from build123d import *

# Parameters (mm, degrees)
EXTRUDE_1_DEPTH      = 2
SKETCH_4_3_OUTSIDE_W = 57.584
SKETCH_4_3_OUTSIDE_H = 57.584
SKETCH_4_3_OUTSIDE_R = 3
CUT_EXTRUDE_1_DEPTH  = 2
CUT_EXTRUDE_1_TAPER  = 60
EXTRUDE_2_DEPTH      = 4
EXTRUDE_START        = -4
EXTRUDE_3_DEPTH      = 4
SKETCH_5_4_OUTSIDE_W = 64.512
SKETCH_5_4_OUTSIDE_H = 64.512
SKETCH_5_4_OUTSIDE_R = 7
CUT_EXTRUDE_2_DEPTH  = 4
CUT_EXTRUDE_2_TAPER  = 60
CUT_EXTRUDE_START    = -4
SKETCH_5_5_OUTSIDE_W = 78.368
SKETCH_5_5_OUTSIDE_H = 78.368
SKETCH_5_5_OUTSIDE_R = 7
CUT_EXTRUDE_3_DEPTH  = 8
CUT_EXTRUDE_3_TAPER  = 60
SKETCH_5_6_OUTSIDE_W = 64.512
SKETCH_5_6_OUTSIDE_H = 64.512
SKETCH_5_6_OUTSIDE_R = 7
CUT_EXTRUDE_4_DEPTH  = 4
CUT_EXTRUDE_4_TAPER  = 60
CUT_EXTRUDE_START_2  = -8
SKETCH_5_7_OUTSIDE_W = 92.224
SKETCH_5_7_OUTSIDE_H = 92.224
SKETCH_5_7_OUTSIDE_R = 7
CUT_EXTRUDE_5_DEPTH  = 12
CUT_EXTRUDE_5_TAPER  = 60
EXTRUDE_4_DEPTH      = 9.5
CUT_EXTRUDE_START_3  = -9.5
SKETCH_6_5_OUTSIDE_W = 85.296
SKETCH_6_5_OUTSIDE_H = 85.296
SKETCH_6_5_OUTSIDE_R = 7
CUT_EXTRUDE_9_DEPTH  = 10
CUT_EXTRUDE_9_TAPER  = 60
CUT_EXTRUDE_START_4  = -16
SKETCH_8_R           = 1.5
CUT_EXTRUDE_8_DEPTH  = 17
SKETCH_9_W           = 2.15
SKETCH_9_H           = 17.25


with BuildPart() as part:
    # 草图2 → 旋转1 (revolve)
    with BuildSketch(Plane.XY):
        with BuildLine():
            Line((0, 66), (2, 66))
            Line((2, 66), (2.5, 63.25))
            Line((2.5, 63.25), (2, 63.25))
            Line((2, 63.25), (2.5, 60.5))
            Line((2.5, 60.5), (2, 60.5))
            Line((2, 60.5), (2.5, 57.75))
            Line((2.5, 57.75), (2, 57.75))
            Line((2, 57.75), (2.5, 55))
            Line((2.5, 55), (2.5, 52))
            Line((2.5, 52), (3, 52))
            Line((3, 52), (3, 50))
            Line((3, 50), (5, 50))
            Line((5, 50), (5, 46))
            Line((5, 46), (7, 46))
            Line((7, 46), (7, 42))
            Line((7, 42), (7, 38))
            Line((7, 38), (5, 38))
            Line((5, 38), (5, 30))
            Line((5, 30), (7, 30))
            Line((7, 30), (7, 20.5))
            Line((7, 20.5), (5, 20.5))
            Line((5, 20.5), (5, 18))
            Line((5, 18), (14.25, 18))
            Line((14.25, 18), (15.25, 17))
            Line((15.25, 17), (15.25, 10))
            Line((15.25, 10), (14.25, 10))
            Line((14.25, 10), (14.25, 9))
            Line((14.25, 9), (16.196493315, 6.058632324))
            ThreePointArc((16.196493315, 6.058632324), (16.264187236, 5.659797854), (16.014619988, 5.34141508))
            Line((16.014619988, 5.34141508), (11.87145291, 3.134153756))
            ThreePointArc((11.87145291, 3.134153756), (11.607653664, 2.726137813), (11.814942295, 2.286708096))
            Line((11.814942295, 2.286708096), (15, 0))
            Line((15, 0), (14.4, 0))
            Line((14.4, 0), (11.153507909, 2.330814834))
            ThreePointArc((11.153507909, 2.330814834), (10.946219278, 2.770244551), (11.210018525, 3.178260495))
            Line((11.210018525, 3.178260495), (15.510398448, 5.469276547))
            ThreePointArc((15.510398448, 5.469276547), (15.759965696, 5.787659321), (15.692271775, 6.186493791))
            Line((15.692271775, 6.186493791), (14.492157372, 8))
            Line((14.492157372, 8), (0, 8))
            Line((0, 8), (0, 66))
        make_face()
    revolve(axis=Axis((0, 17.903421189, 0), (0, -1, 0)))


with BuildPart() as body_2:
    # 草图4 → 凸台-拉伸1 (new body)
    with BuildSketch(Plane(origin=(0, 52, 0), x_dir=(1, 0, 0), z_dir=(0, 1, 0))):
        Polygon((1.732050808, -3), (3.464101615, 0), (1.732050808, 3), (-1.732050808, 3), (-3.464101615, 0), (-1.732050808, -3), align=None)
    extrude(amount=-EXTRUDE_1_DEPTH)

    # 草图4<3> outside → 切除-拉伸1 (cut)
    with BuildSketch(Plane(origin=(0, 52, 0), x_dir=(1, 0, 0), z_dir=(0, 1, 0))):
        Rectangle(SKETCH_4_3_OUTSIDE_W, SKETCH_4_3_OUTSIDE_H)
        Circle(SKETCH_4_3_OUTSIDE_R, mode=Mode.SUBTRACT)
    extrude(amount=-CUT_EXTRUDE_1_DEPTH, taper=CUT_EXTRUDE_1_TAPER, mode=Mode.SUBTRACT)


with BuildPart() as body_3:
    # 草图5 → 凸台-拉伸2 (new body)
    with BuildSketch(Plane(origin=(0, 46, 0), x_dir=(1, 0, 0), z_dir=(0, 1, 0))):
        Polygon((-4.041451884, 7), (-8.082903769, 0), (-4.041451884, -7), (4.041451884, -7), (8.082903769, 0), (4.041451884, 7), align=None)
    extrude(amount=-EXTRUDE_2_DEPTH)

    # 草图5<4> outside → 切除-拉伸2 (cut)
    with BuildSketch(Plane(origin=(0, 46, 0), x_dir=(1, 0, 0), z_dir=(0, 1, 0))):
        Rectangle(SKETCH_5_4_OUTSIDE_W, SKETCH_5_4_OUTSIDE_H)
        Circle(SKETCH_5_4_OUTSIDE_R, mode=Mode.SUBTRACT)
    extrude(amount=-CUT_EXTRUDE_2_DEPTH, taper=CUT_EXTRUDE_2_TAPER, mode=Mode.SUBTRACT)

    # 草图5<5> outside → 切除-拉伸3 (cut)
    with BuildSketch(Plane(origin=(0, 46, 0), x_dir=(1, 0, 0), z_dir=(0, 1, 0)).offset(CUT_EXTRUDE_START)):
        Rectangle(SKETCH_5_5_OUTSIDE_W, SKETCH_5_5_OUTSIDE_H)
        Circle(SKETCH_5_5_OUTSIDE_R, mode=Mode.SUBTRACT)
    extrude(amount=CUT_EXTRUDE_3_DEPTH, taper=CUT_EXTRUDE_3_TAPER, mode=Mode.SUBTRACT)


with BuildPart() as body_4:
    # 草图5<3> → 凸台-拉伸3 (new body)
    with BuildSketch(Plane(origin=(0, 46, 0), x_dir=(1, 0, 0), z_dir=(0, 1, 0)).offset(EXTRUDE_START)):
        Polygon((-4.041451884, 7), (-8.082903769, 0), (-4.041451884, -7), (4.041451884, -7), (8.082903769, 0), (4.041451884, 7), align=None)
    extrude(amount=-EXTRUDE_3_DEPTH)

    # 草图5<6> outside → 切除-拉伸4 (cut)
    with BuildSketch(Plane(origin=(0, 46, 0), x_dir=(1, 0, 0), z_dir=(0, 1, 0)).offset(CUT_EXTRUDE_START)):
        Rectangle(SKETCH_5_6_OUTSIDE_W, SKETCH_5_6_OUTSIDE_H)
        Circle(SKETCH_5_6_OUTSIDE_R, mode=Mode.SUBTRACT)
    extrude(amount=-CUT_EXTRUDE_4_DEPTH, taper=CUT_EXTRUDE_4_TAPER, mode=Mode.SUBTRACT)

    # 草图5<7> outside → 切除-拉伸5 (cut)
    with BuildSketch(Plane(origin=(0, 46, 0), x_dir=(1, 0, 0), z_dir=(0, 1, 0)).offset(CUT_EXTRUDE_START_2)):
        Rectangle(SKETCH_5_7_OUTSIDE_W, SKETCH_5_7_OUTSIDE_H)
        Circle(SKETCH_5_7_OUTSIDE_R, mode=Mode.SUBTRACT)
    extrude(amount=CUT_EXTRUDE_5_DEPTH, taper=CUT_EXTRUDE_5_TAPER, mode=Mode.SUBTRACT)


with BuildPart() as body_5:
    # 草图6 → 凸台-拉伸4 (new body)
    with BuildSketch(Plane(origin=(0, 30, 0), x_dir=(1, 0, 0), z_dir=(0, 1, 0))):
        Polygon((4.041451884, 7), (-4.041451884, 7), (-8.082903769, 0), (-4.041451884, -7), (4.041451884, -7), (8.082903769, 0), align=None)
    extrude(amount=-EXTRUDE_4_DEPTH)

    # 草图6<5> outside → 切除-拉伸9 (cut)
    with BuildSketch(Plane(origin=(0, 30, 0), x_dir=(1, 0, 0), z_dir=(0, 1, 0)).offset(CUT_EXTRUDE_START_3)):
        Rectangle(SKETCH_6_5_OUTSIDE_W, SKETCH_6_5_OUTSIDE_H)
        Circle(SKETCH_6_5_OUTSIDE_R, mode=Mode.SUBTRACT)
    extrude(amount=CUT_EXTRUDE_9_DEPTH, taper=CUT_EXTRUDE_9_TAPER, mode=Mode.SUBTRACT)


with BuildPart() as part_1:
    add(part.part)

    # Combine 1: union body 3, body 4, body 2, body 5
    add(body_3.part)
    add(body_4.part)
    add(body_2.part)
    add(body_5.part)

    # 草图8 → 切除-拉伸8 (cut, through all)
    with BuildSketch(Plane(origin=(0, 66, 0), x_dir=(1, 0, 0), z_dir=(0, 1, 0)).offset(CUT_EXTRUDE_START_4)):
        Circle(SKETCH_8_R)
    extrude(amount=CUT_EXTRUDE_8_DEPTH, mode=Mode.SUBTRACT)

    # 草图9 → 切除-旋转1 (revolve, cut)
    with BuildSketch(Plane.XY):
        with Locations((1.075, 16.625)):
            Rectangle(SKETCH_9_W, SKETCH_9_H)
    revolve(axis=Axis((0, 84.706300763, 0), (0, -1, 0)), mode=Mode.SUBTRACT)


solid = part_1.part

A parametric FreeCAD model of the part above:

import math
import FreeCAD as App
import Part
import Sketcher
from FreeCAD import Vector
Q = App.Units.Quantity

doc = App.newDocument("Part")
body = doc.addObject("PartDesign::Body", "Body")

# Sketch on XY plane
sketch1 = body.newObject("Sketcher::SketchObject", "Sketch")
sketch1.AttachmentSupport = (doc.getObject("XY_Plane"), [""])
sketch1.MapMode = "FlatFace"
sketch1.addGeometry([
    Part.LineSegment(Vector(2, 66, 0), Vector(0, 66, 0)),  # 0
    Part.LineSegment(Vector(0, 66, 0), Vector(0, 8, 0)),  # 1
    Part.LineSegment(Vector(0, 8, 0), Vector(14.5, 8, 0)),  # 2
    Part.LineSegment(Vector(14.5, 8, 0), Vector(15.7, 6.2, 0)),  # 3
    Part.ArcOfCircle(Part.Circle(Vector(15.3, 5.9, 0), Vector(0, 0, 1), 0.5), math.radians(-62), math.radians(33)),  # 4
    Part.LineSegment(Vector(15.5, 5.5, 0), Vector(11.2, 3.2, 0)),  # 5
    Part.ArcOfCircle(Part.Circle(Vector(11.4, 2.7, 0), Vector(0, 0, 1), 0.5), math.radians(118), math.radians(234)),  # 6
    Part.LineSegment(Vector(11.2, 2.3, 0), Vector(14.4, 0, 0)),  # 7
    Part.LineSegment(Vector(14.4, 0, 0), Vector(15, 0, 0)),  # 8
    Part.LineSegment(Vector(15, 0, 0), Vector(11.8, 2.3, 0)),  # 9
    Part.ArcOfCircle(Part.Circle(Vector(12.1, 2.7, 0), Vector(0, 0, 1), 0.5), math.radians(118), math.radians(234)),  # 10
    Part.LineSegment(Vector(11.9, 3.1, 0), Vector(16, 5.3, 0)),  # 11
    Part.ArcOfCircle(Part.Circle(Vector(15.8, 5.8, 0), Vector(0, 0, 1), 0.5), math.radians(-62), math.radians(33)),  # 12
    Part.LineSegment(Vector(16.2, 6.1, 0), Vector(14.2, 9, 0)),  # 13
    Part.LineSegment(Vector(14.2, 9, 0), Vector(14.2, 10, 0)),  # 14
    Part.LineSegment(Vector(14.2, 10, 0), Vector(15.2, 10, 0)),  # 15
    Part.LineSegment(Vector(15.2, 10, 0), Vector(15.2, 17, 0)),  # 16
    Part.LineSegment(Vector(15.2, 17, 0), Vector(14.2, 18, 0)),  # 17
    Part.LineSegment(Vector(14.2, 18, 0), Vector(5, 18, 0)),  # 18
    Part.LineSegment(Vector(5, 18, 0), Vector(5, 20.5, 0)),  # 19
    Part.LineSegment(Vector(5, 20.5, 0), Vector(7, 20.5, 0)),  # 20
    Part.LineSegment(Vector(7, 20.5, 0), Vector(7, 30, 0)),  # 21
    Part.LineSegment(Vector(7, 30, 0), Vector(5, 30, 0)),  # 22
    Part.LineSegment(Vector(5, 30, 0), Vector(5, 38, 0)),  # 23
    Part.LineSegment(Vector(5, 38, 0), Vector(7, 38, 0)),  # 24
    Part.LineSegment(Vector(7, 38, 0), Vector(7, 46, 0)),  # 25
    Part.LineSegment(Vector(7, 46, 0), Vector(5, 46, 0)),  # 26
    Part.LineSegment(Vector(5, 46, 0), Vector(5, 50, 0)),  # 27
    Part.LineSegment(Vector(5, 50, 0), Vector(3, 50, 0)),  # 28
    Part.LineSegment(Vector(3, 50, 0), Vector(3, 52, 0)),  # 29
    Part.LineSegment(Vector(3, 52, 0), Vector(2.5, 52, 0)),  # 30
    Part.LineSegment(Vector(2.5, 52, 0), Vector(2.5, 55, 0)),  # 31
    Part.LineSegment(Vector(2.5, 55, 0), Vector(2, 57.8, 0)),  # 32
    Part.LineSegment(Vector(2, 57.8, 0), Vector(2.5, 57.8, 0)),  # 33
    Part.LineSegment(Vector(2.5, 57.8, 0), Vector(2, 60.5, 0)),  # 34
    Part.LineSegment(Vector(2, 60.5, 0), Vector(2.5, 60.5, 0)),  # 35
    Part.LineSegment(Vector(2.5, 60.5, 0), Vector(2, 63.2, 0)),  # 36
    Part.LineSegment(Vector(2, 63.2, 0), Vector(2.5, 63.2, 0)),  # 37
    Part.LineSegment(Vector(2.5, 63.2, 0), Vector(2, 66, 0)),  # 38
], False)
sketch1.addConstraint([
    Sketcher.Constraint("Coincident", 0, 2, 1, 1),
    Sketcher.Constraint("Coincident", 1, 2, 2, 1),
    Sketcher.Constraint("Coincident", 2, 2, 3, 1),
    Sketcher.Constraint("Tangent", 3, 2, 4, 2),
    Sketcher.Constraint("Tangent", 4, 1, 5, 1),
    Sketcher.Constraint("Tangent", 5, 2, 6, 1),
    Sketcher.Constraint("Tangent", 6, 2, 7, 1),
    Sketcher.Constraint("Coincident", 7, 2, 8, 1),
    Sketcher.Constraint("Coincident", 8, 2, 9, 1),
    Sketcher.Constraint("Tangent", 9, 2, 10, 2),
    Sketcher.Constraint("Tangent", 10, 1, 11, 1),
    Sketcher.Constraint("Tangent", 11, 2, 12, 1),
    Sketcher.Constraint("Tangent", 12, 2, 13, 1),
    Sketcher.Constraint("Coincident", 13, 2, 14, 1),
    Sketcher.Constraint("Coincident", 14, 2, 15, 1),
    Sketcher.Constraint("Coincident", 15, 2, 16, 1),
    Sketcher.Constraint("Coincident", 16, 2, 17, 1),
    Sketcher.Constraint("Coincident", 17, 2, 18, 1),
    Sketcher.Constraint("Coincident", 18, 2, 19, 1),
    Sketcher.Constraint("Coincident", 19, 2, 20, 1),
    Sketcher.Constraint("Coincident", 20, 2, 21, 1),
    Sketcher.Constraint("Coincident", 21, 2, 22, 1),
    Sketcher.Constraint("Coincident", 22, 2, 23, 1),
    Sketcher.Constraint("Coincident", 23, 2, 24, 1),
    Sketcher.Constraint("Coincident", 24, 2, 25, 1),
    Sketcher.Constraint("Coincident", 25, 2, 26, 1),
    Sketcher.Constraint("Coincident", 26, 2, 27, 1),
    Sketcher.Constraint("Coincident", 27, 2, 28, 1),
    Sketcher.Constraint("Coincident", 28, 2, 29, 1),
    Sketcher.Constraint("Coincident", 29, 2, 30, 1),
    Sketcher.Constraint("Coincident", 30, 2, 31, 1),
    Sketcher.Constraint("Coincident", 31, 2, 32, 1),
    Sketcher.Constraint("Coincident", 32, 2, 33, 1),
    Sketcher.Constraint("Coincident", 33, 2, 34, 1),
    Sketcher.Constraint("Coincident", 34, 2, 35, 1),
    Sketcher.Constraint("Coincident", 35, 2, 36, 1),
    Sketcher.Constraint("Coincident", 36, 2, 37, 1),
    Sketcher.Constraint("Coincident", 37, 2, 38, 1),
    Sketcher.Constraint("Coincident", 38, 2, 0, 1),
    Sketcher.Constraint("Horizontal", 0),
    Sketcher.Constraint("Vertical", 1),
    Sketcher.Constraint("Horizontal", 2),
    Sketcher.Constraint("Horizontal", 8),
    Sketcher.Constraint("Vertical", 14),
    Sketcher.Constraint("Horizontal", 15),
    Sketcher.Constraint("Vertical", 16),
    Sketcher.Constraint("Horizontal", 18),
    Sketcher.Constraint("Vertical", 19),
    Sketcher.Constraint("Horizontal", 20),
    Sketcher.Constraint("Vertical", 21),
    Sketcher.Constraint("Horizontal", 22),
    Sketcher.Constraint("Vertical", 23),
    Sketcher.Constraint("Horizontal", 24),
    Sketcher.Constraint("Vertical", 25),
    Sketcher.Constraint("Horizontal", 26),
    Sketcher.Constraint("Vertical", 27),
    Sketcher.Constraint("Horizontal", 28),
    Sketcher.Constraint("Vertical", 29),
    Sketcher.Constraint("Horizontal", 30),
    Sketcher.Constraint("Vertical", 31),
    Sketcher.Constraint("Horizontal", 33),
    Sketcher.Constraint("Horizontal", 35),
    Sketcher.Constraint("Horizontal", 37),
    Sketcher.Constraint("Equal", 4, 6),
    Sketcher.Constraint("Equal", 6, 10),
    Sketcher.Constraint("Equal", 10, 12),
    Sketcher.Constraint("PointOnObject", 0, 2, -2),
    Sketcher.Constraint("PointOnObject", 7, 2, -1),
    Sketcher.Constraint("Parallel", 7, 9),
    Sketcher.Constraint("Parallel", 5, 11),
    Sketcher.Constraint("Parallel", 3, 13),
    Sketcher.Constraint("Parallel", 32, 34),
    Sketcher.Constraint("Parallel", 34, 36),
    Sketcher.Constraint("Parallel", 36, 38),
    Sketcher.Constraint("Vertical", 14, 2, 17, 2),
    Sketcher.Constraint("Vertical", 19, 2, 22, 2),
    Sketcher.Constraint("Vertical", 21, 2, 24, 2),
    Sketcher.Constraint("Vertical", 23, 2, 26, 2),
    Sketcher.Constraint("Vertical", 31, 2, 33, 2),
    Sketcher.Constraint("Vertical", 32, 2, 34, 2),
    Sketcher.Constraint("Vertical", 33, 2, 35, 2),
    Sketcher.Constraint("Vertical", 34, 2, 36, 2),
    Sketcher.Constraint("Vertical", 35, 2, 37, 2),
    Sketcher.Constraint("Vertical", 36, 2, 38, 2),
    Sketcher.Constraint("Equal", 0, 20),
    Sketcher.Constraint("Equal", 26, 28),
    Sketcher.Constraint("Equal", 30, 33),
    Sketcher.Constraint("Equal", 15, 14),
    Sketcher.Constraint("Equal", 23, 25),
    Sketcher.Constraint("Equal", 28, 29),
    Sketcher.Constraint("Radius", 4, Q("0.5 mm")),
    Sketcher.Constraint("DistanceX", 0, 2, 0, 1, Q("2 mm")),
    Sketcher.Constraint("DistanceX", 15, 1, 15, 2, Q("1 mm")),
    Sketcher.Constraint("DistanceY", 1, 2, 1, 1, Q("58 mm")),
    Sketcher.Constraint("DistanceY", 16, 1, 16, 2, Q("7 mm")),
    Sketcher.Constraint("DistanceY", 23, 1, 23, 2, Q("8 mm")),
    Sketcher.Constraint("DistanceY", 27, 1, 27, 2, Q("4 mm")),
    Sketcher.Constraint("DistanceY", 31, 1, 31, 2, Q("3 mm")),
    Sketcher.Constraint("Angle", 17, Q("135 deg")),
    Sketcher.Constraint("DistanceX", 8, 1, 8, 2, Q("0.6 mm")),
    Sketcher.Constraint("DistanceX", 30, 2, 30, 1, Q("0.5 mm")),
    Sketcher.Constraint("DistanceY", 19, 1, 19, 2, Q("2.5 mm")),
    Sketcher.Constraint("DistanceY", 21, 1, 21, 2, Q("9.5 mm")),
    Sketcher.Constraint("DistanceY", -1, 1, 0, 2, Q("66 mm")),
    Sketcher.Constraint("DistanceX", -1, 1, 8, 2, Q("15 mm")),
    Sketcher.Constraint("DistanceY", -1, 1, 13, 2, Q("9 mm")),
    Sketcher.Constraint("DistanceX", 18, 2, 18, 1, Q("9.25 mm")),
    Sketcher.Constraint("DistanceY", -1, 1, 12, 3, Q("5.782699 mm")),
    Sketcher.Constraint("DistanceX", -1, 1, 4, 1, Q("15.510398 mm")),
    Sketcher.Constraint("DistanceY", 5, 2, 4, 3, Q("2.7323 mm")),
    Sketcher.Constraint("Distance", 5, Q("4.872579 mm")),
    Sketcher.Constraint("Distance", 7, Q("3.99655 mm")),
    Sketcher.Constraint("Distance", 9, Q("3.920922 mm")),
])
revolution = body.newObject("PartDesign::Revolution", "Revolution")
revolution.Profile = sketch1
revolution.ReferenceAxis = (sketch1, ["V_Axis"])
revolution.Angle = 360
body2 = doc.addObject("PartDesign::Body", "Body001")

# Sketch on XZ plane
sketch2 = body2.newObject("Sketcher::SketchObject", "Sketch001")
sketch2.AttachmentSupport = (doc.getObject("XZ_Plane001"), [""])
sketch2.MapMode = "FlatFace"
sketch2.AttachmentOffset = App.Placement(Vector(0, 0, -52), App.Rotation())
sketch2.addGeometry([
    Part.LineSegment(Vector(1.7, 3, 0), Vector(3.5, 0, 0)),  # 0
    Part.LineSegment(Vector(3.5, 0, 0), Vector(1.7, -3, 0)),  # 1
    Part.LineSegment(Vector(1.7, -3, 0), Vector(-1.7, -3, 0)),  # 2
    Part.LineSegment(Vector(-1.7, -3, 0), Vector(-3.5, 0, 0)),  # 3
    Part.LineSegment(Vector(-3.5, 0, 0), Vector(-1.7, 3, 0)),  # 4
    Part.LineSegment(Vector(-1.7, 3, 0), Vector(1.7, 3, 0)),  # 5
], False)
sketch2.addConstraint([
    Sketcher.Constraint("Coincident", 0, 2, 1, 1),
    Sketcher.Constraint("Coincident", 1, 2, 2, 1),
    Sketcher.Constraint("Coincident", 2, 2, 3, 1),
    Sketcher.Constraint("Coincident", 3, 2, 4, 1),
    Sketcher.Constraint("Coincident", 4, 2, 5, 1),
    Sketcher.Constraint("Coincident", 5, 2, 0, 1),
    Sketcher.Constraint("Horizontal", 2),
    Sketcher.Constraint("Horizontal", 5),
    Sketcher.Constraint("Symmetric", 0, 2, 3, 2, -1, 1),
    Sketcher.Constraint("Symmetric", 1, 2, 4, 2, -1, 1),
    Sketcher.Constraint("PointOnObject", 0, 2, -1),
    Sketcher.Constraint("Parallel", 0, 3),
    Sketcher.Constraint("Vertical", 2, 2, 4, 2),
    Sketcher.Constraint("Angle", 0, Q("-60 deg")),
    Sketcher.Constraint("DistanceY", 1, 2, -1, 1, Q("3 mm")),
    Sketcher.Constraint("DistanceX", 2, 2, 2, 1, Q("3.464102 mm")),
])
pad1 = body2.newObject("PartDesign::Pad", "Pad")
pad1.Profile = sketch2
pad1.Length = 2

# Sketch on XZ plane
sketch3 = body2.newObject("Sketcher::SketchObject", "Sketch002")
sketch3.AttachmentSupport = (doc.getObject("XZ_Plane001"), [""])
sketch3.MapMode = "FlatFace"
sketch3.AttachmentOffset = App.Placement(Vector(0, 0, -52), App.Rotation())
sketch3.addGeometry([
    Part.LineSegment(Vector(-28.8, -28.8, 0), Vector(-28.8, 28.8, 0)),  # 0
    Part.LineSegment(Vector(-28.8, 28.8, 0), Vector(28.8, 28.8, 0)),  # 1
    Part.LineSegment(Vector(28.8, 28.8, 0), Vector(28.8, -28.8, 0)),  # 2
    Part.LineSegment(Vector(28.8, -28.8, 0), Vector(-28.8, -28.8, 0)),  # 3
    Part.Circle(Vector(0, 0, 0), Vector(0, 0, 1), 3),  # 4
], False)
sketch3.addConstraint([
    Sketcher.Constraint("Coincident", 0, 2, 1, 1),
    Sketcher.Constraint("Coincident", 1, 2, 2, 1),
    Sketcher.Constraint("Coincident", 2, 2, 3, 1),
    Sketcher.Constraint("Coincident", 3, 2, 0, 1),
    Sketcher.Constraint("Vertical", 0),
    Sketcher.Constraint("Horizontal", 1),
    Sketcher.Constraint("Vertical", 2),
    Sketcher.Constraint("Horizontal", 3),
    Sketcher.Constraint("Coincident", 4, 3, -1, 1),
    Sketcher.Constraint("Symmetric", 0, 2, 2, 2, -1, 1),
    Sketcher.Constraint("Equal", 3, 0),
    Sketcher.Constraint("Diameter", 4, Q("6 mm")),
    Sketcher.Constraint("DistanceX", 1, 1, 1, 2, Q("57.584 mm")),
])
pocket1 = body2.newObject("PartDesign::Pocket", "Pocket")
pocket1.Profile = sketch3
pocket1.Length = 2
pocket1.Reversed = True
pocket1.TaperAngle = 60
body3 = doc.addObject("PartDesign::Body", "Body002")

# Sketch on XZ plane
sketch4 = body3.newObject("Sketcher::SketchObject", "Sketch003")
sketch4.AttachmentSupport = (doc.getObject("XZ_Plane002"), [""])
sketch4.MapMode = "FlatFace"
sketch4.AttachmentOffset = App.Placement(Vector(0, 0, -46), App.Rotation())
sketch4.addGeometry([
    Part.LineSegment(Vector(-4, -7, 0), Vector(-8, 0, 0)),  # 0
    Part.LineSegment(Vector(-8, 0, 0), Vector(-4, 7, 0)),  # 1
    Part.LineSegment(Vector(-4, 7, 0), Vector(4, 7, 0)),  # 2
    Part.LineSegment(Vector(4, 7, 0), Vector(8, 0, 0)),  # 3
    Part.LineSegment(Vector(8, 0, 0), Vector(4, -7, 0)),  # 4
    Part.LineSegment(Vector(4, -7, 0), Vector(-4, -7, 0)),  # 5
], False)
sketch4.addConstraint([
    Sketcher.Constraint("Coincident", 0, 2, 1, 1),
    Sketcher.Constraint("Coincident", 1, 2, 2, 1),
    Sketcher.Constraint("Coincident", 2, 2, 3, 1),
    Sketcher.Constraint("Coincident", 3, 2, 4, 1),
    Sketcher.Constraint("Coincident", 4, 2, 5, 1),
    Sketcher.Constraint("Coincident", 5, 2, 0, 1),
    Sketcher.Constraint("Horizontal", 2),
    Sketcher.Constraint("Horizontal", 5),
    Sketcher.Constraint("Symmetric", 0, 2, 3, 2, -1, 1),
    Sketcher.Constraint("Symmetric", 1, 2, 4, 2, -1, 1),
    Sketcher.Constraint("PointOnObject", 0, 2, -1),
    Sketcher.Constraint("Parallel", 0, 3),
    Sketcher.Constraint("Vertical", 2, 2, 4, 2),
    Sketcher.Constraint("Angle", 0, Q("120 deg")),
    Sketcher.Constraint("DistanceY", -1, 1, 1, 2, Q("7 mm")),
    Sketcher.Constraint("DistanceX", 2, 1, 2, 2, Q("8.082904 mm")),
])
pad2 = body3.newObject("PartDesign::Pad", "Pad001")
pad2.Profile = sketch4
pad2.Length = 4

# Sketch on XZ plane
sketch5 = body3.newObject("Sketcher::SketchObject", "Sketch004")
sketch5.AttachmentSupport = (doc.getObject("XZ_Plane002"), [""])
sketch5.MapMode = "FlatFace"
sketch5.AttachmentOffset = App.Placement(Vector(0, 0, -46), App.Rotation())
sketch5.addGeometry([
    Part.LineSegment(Vector(-32, -32, 0), Vector(-32, 32, 0)),  # 0
    Part.LineSegment(Vector(-32, 32, 0), Vector(32, 32, 0)),  # 1
    Part.LineSegment(Vector(32, 32, 0), Vector(32, -32, 0)),  # 2
    Part.LineSegment(Vector(32, -32, 0), Vector(-32, -32, 0)),  # 3
    Part.Circle(Vector(0, 0, 0), Vector(0, 0, 1), 7),  # 4
], False)
sketch5.addConstraint([
    Sketcher.Constraint("Coincident", 0, 2, 1, 1),
    Sketcher.Constraint("Coincident", 1, 2, 2, 1),
    Sketcher.Constraint("Coincident", 2, 2, 3, 1),
    Sketcher.Constraint("Coincident", 3, 2, 0, 1),
    Sketcher.Constraint("Vertical", 0),
    Sketcher.Constraint("Horizontal", 1),
    Sketcher.Constraint("Vertical", 2),
    Sketcher.Constraint("Horizontal", 3),
    Sketcher.Constraint("Coincident", 4, 3, -1, 1),
    Sketcher.Constraint("Symmetric", 0, 2, 2, 2, -1, 1),
    Sketcher.Constraint("Equal", 3, 0),
    Sketcher.Constraint("Diameter", 4, Q("14 mm")),
    Sketcher.Constraint("DistanceX", 1, 1, 1, 2, Q("64.512 mm")),
])
pocket2 = body3.newObject("PartDesign::Pocket", "Pocket001")
pocket2.Profile = sketch5
pocket2.Length = 4
pocket2.Reversed = True
pocket2.TaperAngle = 60

# Sketch on XZ plane
sketch6 = body3.newObject("Sketcher::SketchObject", "Sketch005")
sketch6.AttachmentSupport = (doc.getObject("XZ_Plane002"), [""])
sketch6.MapMode = "FlatFace"
sketch6.AttachmentOffset = App.Placement(Vector(0, 0, -42), App.Rotation())
sketch6.addGeometry([
    Part.LineSegment(Vector(-39, -39, 0), Vector(-39, 39, 0)),  # 0
    Part.LineSegment(Vector(-39, 39, 0), Vector(39, 39, 0)),  # 1
    Part.LineSegment(Vector(39, 39, 0), Vector(39, -39, 0)),  # 2
    Part.LineSegment(Vector(39, -39, 0), Vector(-39, -39, 0)),  # 3
    Part.Circle(Vector(0, 0, 0), Vector(0, 0, 1), 7),  # 4
], False)
sketch6.addConstraint([
    Sketcher.Constraint("Coincident", 0, 2, 1, 1),
    Sketcher.Constraint("Coincident", 1, 2, 2, 1),
    Sketcher.Constraint("Coincident", 2, 2, 3, 1),
    Sketcher.Constraint("Coincident", 3, 2, 0, 1),
    Sketcher.Constraint("Vertical", 0),
    Sketcher.Constraint("Horizontal", 1),
    Sketcher.Constraint("Vertical", 2),
    Sketcher.Constraint("Horizontal", 3),
    Sketcher.Constraint("Coincident", 4, 3, -1, 1),
    Sketcher.Constraint("Symmetric", 0, 2, 2, 2, -1, 1),
    Sketcher.Constraint("Equal", 3, 0),
    Sketcher.Constraint("Diameter", 4, Q("14 mm")),
    Sketcher.Constraint("DistanceX", 1, 1, 1, 2, Q("78.368 mm")),
])
pocket3 = body3.newObject("PartDesign::Pocket", "Pocket002")
pocket3.Profile = sketch6
pocket3.Length = 8
pocket3.TaperAngle = 60
body4 = doc.addObject("PartDesign::Body", "Body003")

# Sketch on XZ plane
sketch7 = body4.newObject("Sketcher::SketchObject", "Sketch006")
sketch7.AttachmentSupport = (doc.getObject("XZ_Plane003"), [""])
sketch7.MapMode = "FlatFace"
sketch7.AttachmentOffset = App.Placement(Vector(0, 0, -42), App.Rotation())
sketch7.addGeometry([
    Part.LineSegment(Vector(-4, -7, 0), Vector(-8, 0, 0)),  # 0
    Part.LineSegment(Vector(-8, 0, 0), Vector(-4, 7, 0)),  # 1
    Part.LineSegment(Vector(-4, 7, 0), Vector(4, 7, 0)),  # 2
    Part.LineSegment(Vector(4, 7, 0), Vector(8, 0, 0)),  # 3
    Part.LineSegment(Vector(8, 0, 0), Vector(4, -7, 0)),  # 4
    Part.LineSegment(Vector(4, -7, 0), Vector(-4, -7, 0)),  # 5
], False)
sketch7.addConstraint([
    Sketcher.Constraint("Coincident", 0, 2, 1, 1),
    Sketcher.Constraint("Coincident", 1, 2, 2, 1),
    Sketcher.Constraint("Coincident", 2, 2, 3, 1),
    Sketcher.Constraint("Coincident", 3, 2, 4, 1),
    Sketcher.Constraint("Coincident", 4, 2, 5, 1),
    Sketcher.Constraint("Coincident", 5, 2, 0, 1),
    Sketcher.Constraint("Horizontal", 2),
    Sketcher.Constraint("Horizontal", 5),
    Sketcher.Constraint("Symmetric", 0, 2, 3, 2, -1, 1),
    Sketcher.Constraint("Symmetric", 1, 2, 4, 2, -1, 1),
    Sketcher.Constraint("PointOnObject", 0, 2, -1),
    Sketcher.Constraint("Parallel", 0, 3),
    Sketcher.Constraint("Vertical", 2, 2, 4, 2),
    Sketcher.Constraint("Angle", 0, Q("120 deg")),
    Sketcher.Constraint("DistanceY", -1, 1, 1, 2, Q("7 mm")),
    Sketcher.Constraint("DistanceX", 2, 1, 2, 2, Q("8.082904 mm")),
])
pad3 = body4.newObject("PartDesign::Pad", "Pad002")
pad3.Profile = sketch7
pad3.Length = 4

# Sketch on XZ plane
sketch8 = body4.newObject("Sketcher::SketchObject", "Sketch007")
sketch8.AttachmentSupport = (doc.getObject("XZ_Plane003"), [""])
sketch8.MapMode = "FlatFace"
sketch8.AttachmentOffset = App.Placement(Vector(0, 0, -42), App.Rotation())
sketch8.addGeometry([
    Part.LineSegment(Vector(-32, -32, 0), Vector(-32, 32, 0)),  # 0
    Part.LineSegment(Vector(-32, 32, 0), Vector(32, 32, 0)),  # 1
    Part.LineSegment(Vector(32, 32, 0), Vector(32, -32, 0)),  # 2
    Part.LineSegment(Vector(32, -32, 0), Vector(-32, -32, 0)),  # 3
    Part.Circle(Vector(0, 0, 0), Vector(0, 0, 1), 7),  # 4
], False)
sketch8.addConstraint([
    Sketcher.Constraint("Coincident", 0, 2, 1, 1),
    Sketcher.Constraint("Coincident", 1, 2, 2, 1),
    Sketcher.Constraint("Coincident", 2, 2, 3, 1),
    Sketcher.Constraint("Coincident", 3, 2, 0, 1),
    Sketcher.Constraint("Vertical", 0),
    Sketcher.Constraint("Horizontal", 1),
    Sketcher.Constraint("Vertical", 2),
    Sketcher.Constraint("Horizontal", 3),
    Sketcher.Constraint("Coincident", 4, 3, -1, 1),
    Sketcher.Constraint("Symmetric", 0, 2, 2, 2, -1, 1),
    Sketcher.Constraint("Equal", 3, 0),
    Sketcher.Constraint("Diameter", 4, Q("14 mm")),
    Sketcher.Constraint("DistanceX", 1, 1, 1, 2, Q("64.512 mm")),
])
pocket4 = body4.newObject("PartDesign::Pocket", "Pocket003")
pocket4.Profile = sketch8
pocket4.Length = 4
pocket4.Reversed = True
pocket4.TaperAngle = 60

# Sketch on XZ plane
sketch9 = body4.newObject("Sketcher::SketchObject", "Sketch008")
sketch9.AttachmentSupport = (doc.getObject("XZ_Plane003"), [""])
sketch9.MapMode = "FlatFace"
sketch9.AttachmentOffset = App.Placement(Vector(0, 0, -38), App.Rotation())
sketch9.addGeometry([
    Part.LineSegment(Vector(-46, -46, 0), Vector(-46, 46, 0)),  # 0
    Part.LineSegment(Vector(-46, 46, 0), Vector(46, 46, 0)),  # 1
    Part.LineSegment(Vector(46, 46, 0), Vector(46, -46, 0)),  # 2
    Part.LineSegment(Vector(46, -46, 0), Vector(-46, -46, 0)),  # 3
    Part.Circle(Vector(0, 0, 0), Vector(0, 0, 1), 7),  # 4
], False)
sketch9.addConstraint([
    Sketcher.Constraint("Coincident", 0, 2, 1, 1),
    Sketcher.Constraint("Coincident", 1, 2, 2, 1),
    Sketcher.Constraint("Coincident", 2, 2, 3, 1),
    Sketcher.Constraint("Coincident", 3, 2, 0, 1),
    Sketcher.Constraint("Vertical", 0),
    Sketcher.Constraint("Horizontal", 1),
    Sketcher.Constraint("Vertical", 2),
    Sketcher.Constraint("Horizontal", 3),
    Sketcher.Constraint("Coincident", 4, 3, -1, 1),
    Sketcher.Constraint("Symmetric", 0, 2, 2, 2, -1, 1),
    Sketcher.Constraint("Equal", 3, 0),
    Sketcher.Constraint("Diameter", 4, Q("14 mm")),
    Sketcher.Constraint("DistanceX", 1, 1, 1, 2, Q("92.224 mm")),
])
pocket5 = body4.newObject("PartDesign::Pocket", "Pocket004")
pocket5.Profile = sketch9
pocket5.Length = 12
pocket5.TaperAngle = 60
body5 = doc.addObject("PartDesign::Body", "Body004")

# Sketch on XZ plane
sketch10 = body5.newObject("Sketcher::SketchObject", "Sketch009")
sketch10.AttachmentSupport = (doc.getObject("XZ_Plane004"), [""])
sketch10.MapMode = "FlatFace"
sketch10.AttachmentOffset = App.Placement(Vector(0, 0, -30), App.Rotation())
sketch10.addGeometry([
    Part.LineSegment(Vector(4, -7, 0), Vector(-4, -7, 0)),  # 0
    Part.LineSegment(Vector(-4, -7, 0), Vector(-8, 0, 0)),  # 1
    Part.LineSegment(Vector(-8, 0, 0), Vector(-4, 7, 0)),  # 2
    Part.LineSegment(Vector(-4, 7, 0), Vector(4, 7, 0)),  # 3
    Part.LineSegment(Vector(4, 7, 0), Vector(8, 0, 0)),  # 4
    Part.LineSegment(Vector(8, 0, 0), Vector(4, -7, 0)),  # 5
], False)
sketch10.addConstraint([
    Sketcher.Constraint("Coincident", 0, 2, 1, 1),
    Sketcher.Constraint("Coincident", 1, 2, 2, 1),
    Sketcher.Constraint("Coincident", 2, 2, 3, 1),
    Sketcher.Constraint("Coincident", 3, 2, 4, 1),
    Sketcher.Constraint("Coincident", 4, 2, 5, 1),
    Sketcher.Constraint("Coincident", 5, 2, 0, 1),
    Sketcher.Constraint("Horizontal", 0),
    Sketcher.Constraint("Horizontal", 3),
    Sketcher.Constraint("Symmetric", 0, 2, 3, 2, -1, 1),
    Sketcher.Constraint("Symmetric", 1, 2, 4, 2, -1, 1),
    Sketcher.Constraint("PointOnObject", 1, 2, -1),
    Sketcher.Constraint("Parallel", 2, 5),
    Sketcher.Constraint("Vertical", 0, 2, 2, 2),
    Sketcher.Constraint("Angle", 1, Q("120 deg")),
    Sketcher.Constraint("DistanceY", 0, 2, -1, 1, Q("7 mm")),
    Sketcher.Constraint("DistanceX", 0, 2, 0, 1, Q("8.082904 mm")),
])
pad4 = body5.newObject("PartDesign::Pad", "Pad003")
pad4.Profile = sketch10
pad4.Length = 9.5

# Sketch on XZ plane
sketch11 = body5.newObject("Sketcher::SketchObject", "Sketch010")
sketch11.AttachmentSupport = (doc.getObject("XZ_Plane004"), [""])
sketch11.MapMode = "FlatFace"
sketch11.AttachmentOffset = App.Placement(Vector(0, 0, -20.5), App.Rotation())
sketch11.addGeometry([
    Part.LineSegment(Vector(-43, -43, 0), Vector(-43, 43, 0)),  # 0
    Part.LineSegment(Vector(-43, 43, 0), Vector(43, 43, 0)),  # 1
    Part.LineSegment(Vector(43, 43, 0), Vector(43, -43, 0)),  # 2
    Part.LineSegment(Vector(43, -43, 0), Vector(-43, -43, 0)),  # 3
    Part.Circle(Vector(0, 0, 0), Vector(0, 0, 1), 7),  # 4
], False)
sketch11.addConstraint([
    Sketcher.Constraint("Coincident", 0, 2, 1, 1),
    Sketcher.Constraint("Coincident", 1, 2, 2, 1),
    Sketcher.Constraint("Coincident", 2, 2, 3, 1),
    Sketcher.Constraint("Coincident", 3, 2, 0, 1),
    Sketcher.Constraint("Vertical", 0),
    Sketcher.Constraint("Horizontal", 1),
    Sketcher.Constraint("Vertical", 2),
    Sketcher.Constraint("Horizontal", 3),
    Sketcher.Constraint("Coincident", 4, 3, -1, 1),
    Sketcher.Constraint("Symmetric", 0, 2, 2, 2, -1, 1),
    Sketcher.Constraint("Equal", 3, 0),
    Sketcher.Constraint("Diameter", 4, Q("14 mm")),
    Sketcher.Constraint("DistanceX", 1, 1, 1, 2, Q("85.296 mm")),
])
pocket6 = body5.newObject("PartDesign::Pocket", "Pocket005")
pocket6.Profile = sketch11
pocket6.Length = 10
pocket6.TaperAngle = 60
doc.recompute()

boolean = body.newObject("PartDesign::Boolean", "Boolean")
boolean.Type = "Fuse"
boolean.addObjects([body3])
doc.recompute()

boolean2 = body.newObject("PartDesign::Boolean", "Boolean001")
boolean2.Type = "Fuse"
boolean2.addObjects([body4])
doc.recompute()

boolean3 = body.newObject("PartDesign::Boolean", "Boolean002")
boolean3.Type = "Fuse"
boolean3.addObjects([body2])
doc.recompute()

boolean4 = body.newObject("PartDesign::Boolean", "Boolean003")
boolean4.Type = "Fuse"
boolean4.addObjects([body5])

# Sketch on XZ plane
sketch12 = body.newObject("Sketcher::SketchObject", "Sketch011")
sketch12.AttachmentSupport = (doc.getObject("XZ_Plane"), [""])
sketch12.MapMode = "FlatFace"
sketch12.AttachmentOffset = App.Placement(Vector(0, 0, -50), App.Rotation())
sketch12.addGeometry(Part.Circle(Vector(0, 0, 0), Vector(0, 0, 1), 1.5), False)
sketch12.addConstraint([
    Sketcher.Constraint("Coincident", 0, 3, -1, 1),
    Sketcher.Constraint("Diameter", 0, Q("3 mm")),
])
pocket7 = body.newObject("PartDesign::Pocket", "Pocket006")
pocket7.Profile = sketch12
pocket7.Type = "ThroughAll"

# Sketch on XY plane
sketch13 = body.newObject("Sketcher::SketchObject", "Sketch012")
sketch13.AttachmentSupport = (doc.getObject("XY_Plane"), [""])
sketch13.MapMode = "FlatFace"
sketch13.addGeometry([
    Part.LineSegment(Vector(0, 25.2, 0), Vector(0, 8, 0)),
    Part.LineSegment(Vector(0, 8, 0), Vector(2.1, 8, 0)),
    Part.LineSegment(Vector(2.1, 8, 0), Vector(2.1, 25.2, 0)),
    Part.LineSegment(Vector(2.1, 25.2, 0), Vector(0, 25.2, 0)),
], False)
sketch13.addConstraint([
    Sketcher.Constraint("Coincident", 0, 2, 1, 1),
    Sketcher.Constraint("Coincident", 1, 2, 2, 1),
    Sketcher.Constraint("Coincident", 2, 2, 3, 1),
    Sketcher.Constraint("Coincident", 3, 2, 0, 1),
    Sketcher.Constraint("Vertical", 0),
    Sketcher.Constraint("Horizontal", 1),
    Sketcher.Constraint("Vertical", 2),
    Sketcher.Constraint("Horizontal", 3),
    Sketcher.Constraint("PointOnObject", 0, 2, -2),
    Sketcher.Constraint("DistanceY", -1, 1, 0, 2, Q("8 mm")),
    Sketcher.Constraint("DistanceX", 1, 1, 1, 2, Q("2.15 mm")),
    Sketcher.Constraint("DistanceY", 0, 2, 0, 1, Q("17.25 mm")),
])
groove = body.newObject("PartDesign::Groove", "Groove")
groove.Profile = sketch13
groove.ReferenceAxis = (sketch13, ["V_Axis"])
groove.Angle = 360

doc.recompute()
